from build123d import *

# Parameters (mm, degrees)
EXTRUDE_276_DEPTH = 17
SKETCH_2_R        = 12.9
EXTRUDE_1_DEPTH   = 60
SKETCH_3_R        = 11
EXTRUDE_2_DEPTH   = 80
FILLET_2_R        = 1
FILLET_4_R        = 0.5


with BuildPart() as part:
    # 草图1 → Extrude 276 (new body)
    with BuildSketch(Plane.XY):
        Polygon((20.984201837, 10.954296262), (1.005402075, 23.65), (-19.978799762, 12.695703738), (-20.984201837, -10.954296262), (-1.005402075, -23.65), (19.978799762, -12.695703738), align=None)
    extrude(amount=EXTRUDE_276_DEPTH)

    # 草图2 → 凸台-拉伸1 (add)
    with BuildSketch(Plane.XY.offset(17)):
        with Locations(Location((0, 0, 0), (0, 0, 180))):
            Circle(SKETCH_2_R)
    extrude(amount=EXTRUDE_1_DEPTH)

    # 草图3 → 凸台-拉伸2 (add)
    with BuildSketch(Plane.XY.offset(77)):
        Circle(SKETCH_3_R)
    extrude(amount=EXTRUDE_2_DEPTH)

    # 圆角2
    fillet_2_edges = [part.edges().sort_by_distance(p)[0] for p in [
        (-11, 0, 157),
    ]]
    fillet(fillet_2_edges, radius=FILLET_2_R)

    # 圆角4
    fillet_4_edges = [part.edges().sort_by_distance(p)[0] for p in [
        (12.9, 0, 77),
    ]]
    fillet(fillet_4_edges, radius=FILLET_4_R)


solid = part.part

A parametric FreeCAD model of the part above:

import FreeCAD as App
import Part
import Sketcher
from FreeCAD import Vector
Q = App.Units.Quantity


def edges_at(feature, points):
    """Names of the edges that pass closest to the given points."""
    edges = feature.Shape.Edges
    near = lambda p: min(range(len(edges)), key=lambda i: edges[i].distToShape(Part.Vertex(*p))[0])
    return sorted({f"Edge{near(p) + 1}" for p in points})

doc = App.newDocument("Part")
body = doc.addObject("PartDesign::Body", "Body")

# Sketch on XY plane
sketch1 = body.newObject("Sketcher::SketchObject", "Sketch")
sketch1.AttachmentSupport = (doc.getObject("XY_Plane"), [""])
sketch1.MapMode = "FlatFace"
sketch1.addGeometry(Part.LineSegment(Vector(21, 11, 0), Vector(1, 24, 0)), False)
sketch1.addGeometry(Part.LineSegment(Vector(1, 24, 0), Vector(-20, 13, 0)), False)
sketch1.addGeometry(Part.LineSegment(Vector(-20, 13, 0), Vector(-21, -11, 0)), False)
sketch1.addGeometry(Part.LineSegment(Vector(-21, -11, 0), Vector(-1, -24, 0)), False)
sketch1.addGeometry(Part.LineSegment(Vector(-1, -24, 0), Vector(20, -13, 0)), False)
sketch1.addGeometry(Part.LineSegment(Vector(20, -13, 0), Vector(21, 11, 0)), False)
sketch1.addConstraint(Sketcher.Constraint("Coincident", 0, 2, 1, 1))
sketch1.addConstraint(Sketcher.Constraint("Coincident", 1, 2, 2, 1))
sketch1.addConstraint(Sketcher.Constraint("Coincident", 2, 2, 3, 1))
sketch1.addConstraint(Sketcher.Constraint("Coincident", 3, 2, 4, 1))
sketch1.addConstraint(Sketcher.Constraint("Coincident", 4, 2, 5, 1))
sketch1.addConstraint(Sketcher.Constraint("Coincident", 5, 2, 0, 1))
sketch1.addConstraint(Sketcher.Constraint("Symmetric", 0, 2, 3, 2, -1, 1))
sketch1.addConstraint(Sketcher.Constraint("Symmetric", 1, 2, 4, 2, -1, 1))
sketch1.addConstraint(Sketcher.Constraint("Symmetric", 2, 2, 5, 2, -1, 1))
sketch1.addConstraint(Sketcher.Constraint("Equal", 0, 1))
sketch1.addConstraint(Sketcher.Constraint("Equal", 1, 2))
sketch1.addConstraint(Sketcher.Constraint("DistanceY", 3, 2, 0, 2, Q("47.3 mm")))
sketch1.addConstraint(Sketcher.Constraint("DistanceY", 2, 2, 1, 2, Q("23.65 mm")))
sketch1.addConstraint(Sketcher.Constraint("DistanceX", 2, 2, 4, 2, Q("40.963002 mm")))
sketch1.addConstraint(Sketcher.Constraint("DistanceX", 1, 2, -1, 1, Q("19.9788 mm")))
pad1 = body.newObject("PartDesign::Pad", "Pad")
pad1.Profile = sketch1
pad1.Length = 17

# Sketch on XY plane
sketch2 = body.newObject("Sketcher::SketchObject", "Sketch001")
sketch2.AttachmentSupport = (doc.getObject("XY_Plane"), [""])
sketch2.MapMode = "FlatFace"
sketch2.AttachmentOffset = App.Placement(Vector(0, 0, 17), App.Rotation())
sketch2.addGeometry(Part.Circle(Vector(0, 0, 0), Vector(0, 0, 1), 13), False)
sketch2.addConstraint(Sketcher.Constraint("Coincident", 0, 3, -1, 1))
sketch2.addConstraint(Sketcher.Constraint("Diameter", 0, Q("25.8 mm")))
pad2 = body.newObject("PartDesign::Pad", "Pad001")
pad2.Profile = sketch2
pad2.Length = 60

# Sketch on XY plane
sketch3 = body.newObject("Sketcher::SketchObject", "Sketch002")
sketch3.AttachmentSupport = (doc.getObject("XY_Plane"), [""])
sketch3.MapMode = "FlatFace"
sketch3.AttachmentOffset = App.Placement(Vector(0, 0, 77), App.Rotation())
sketch3.addGeometry(Part.Circle(Vector(0, 0, 0), Vector(0, 0, 1), 11), False)
sketch3.addConstraint(Sketcher.Constraint("Coincident", 0, 3, -1, 1))
sketch3.addConstraint(Sketcher.Constraint("Diameter", 0, Q("22 mm")))
pad3 = body.newObject("PartDesign::Pad", "Pad002")
pad3.Profile = sketch3
pad3.Length = 80
doc.recompute()

fillet = body.newObject("PartDesign::Fillet", "Fillet")
fillet.Base = (pad3, edges_at(pad3, [(-11, 0, 157)]))
fillet.Radius = 1
doc.recompute()

fillet2 = body.newObject("PartDesign::Fillet", "Fillet001")
fillet2.Base = (fillet, edges_at(fillet, [(12.9, 0, 77)]))
fillet2.Radius = 0.5

doc.recompute()
